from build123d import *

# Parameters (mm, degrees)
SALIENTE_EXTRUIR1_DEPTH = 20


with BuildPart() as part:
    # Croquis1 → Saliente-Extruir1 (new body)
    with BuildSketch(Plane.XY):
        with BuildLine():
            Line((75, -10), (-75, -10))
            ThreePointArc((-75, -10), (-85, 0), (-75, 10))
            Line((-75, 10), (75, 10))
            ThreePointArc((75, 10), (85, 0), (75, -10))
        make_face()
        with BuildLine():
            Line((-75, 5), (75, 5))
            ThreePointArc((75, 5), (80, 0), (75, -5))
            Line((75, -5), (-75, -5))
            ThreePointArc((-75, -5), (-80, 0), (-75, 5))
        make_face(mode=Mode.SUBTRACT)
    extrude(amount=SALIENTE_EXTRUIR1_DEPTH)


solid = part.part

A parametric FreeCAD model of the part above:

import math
import FreeCAD as App
import Part
import Sketcher
from FreeCAD import Vector
Q = App.Units.Quantity

doc = App.newDocument("Part")
body = doc.addObject("PartDesign::Body", "Body")

# Sketch on XY plane
sketch1 = doc.addObject("Sketcher::SketchObject", "Sketch")
body.addObject(sketch1)
sketch1.AttachmentSupport = (doc.XY_Plane, [""])
sketch1.MapMode = "FlatFace"
sketch1.addGeometry(Part.LineSegment(Vector(-75, -10, 0), Vector(75, -10, 0)), False)
sketch1.addGeometry(Part.ArcOfCircle(Part.Circle(Vector(75, 0, 0), Vector(0, 0, 1), 10), math.radians(-90), math.radians(90)), False)
sketch1.addGeometry(Part.LineSegment(Vector(75, 10, 0), Vector(-75, 10, 0)), False)
sketch1.addGeometry(Part.ArcOfCircle(Part.Circle(Vector(-75, 0, 0), Vector(0, 0, 1), 10), math.radians(90), math.radians(270)), False)
sketch1.addGeometry(Part.LineSegment(Vector(-75, 5, 0), Vector(75, 5, 0)), False)
sketch1.addGeometry(Part.ArcOfCircle(Part.Circle(Vector(75, 0, 0), Vector(0, 0, 1), 5), math.radians(-90), math.radians(90)), False)
sketch1.addGeometry(Part.LineSegment(Vector(75, -5, 0), Vector(-75, -5, 0)), False)
sketch1.addGeometry(Part.ArcOfCircle(Part.Circle(Vector(-75, 0, 0), Vector(0, 0, 1), 5), math.radians(90), math.radians(270)), False)
sketch1.addConstraint(Sketcher.Constraint("Tangent", 0, 2, 1, 1))
sketch1.addConstraint(Sketcher.Constraint("Tangent", 1, 2, 2, 1))
sketch1.addConstraint(Sketcher.Constraint("Tangent", 2, 2, 3, 1))
sketch1.addConstraint(Sketcher.Constraint("Tangent", 3, 2, 0, 1))
sketch1.addConstraint(Sketcher.Constraint("Tangent", 4, 2, 5, 2))
sketch1.addConstraint(Sketcher.Constraint("Tangent", 5, 1, 6, 1))
sketch1.addConstraint(Sketcher.Constraint("Tangent", 6, 2, 7, 2))
sketch1.addConstraint(Sketcher.Constraint("Tangent", 7, 1, 4, 1))
sketch1.addConstraint(Sketcher.Constraint("Horizontal", 0))
sketch1.addConstraint(Sketcher.Constraint("Horizontal", 2))
sketch1.addConstraint(Sketcher.Constraint("Horizontal", 4))
sketch1.addConstraint(Sketcher.Constraint("Horizontal", 6))
sketch1.addConstraint(Sketcher.Constraint("Coincident", 5, 3, 1, 3))
sketch1.addConstraint(Sketcher.Constraint("Symmetric", 1, 3, 3, 3, -1, 1))
sketch1.addConstraint(Sketcher.Constraint("Vertical", 7, 3, 2, 2))
sketch1.addConstraint(Sketcher.Constraint("Radius", 1, Q("10 mm")))
sketch1.addConstraint(Sketcher.Constraint("Radius", 5, Q("5 mm")))
sketch1.addConstraint(Sketcher.Constraint("DistanceX", 0, 1, 0, 2, Q("150 mm")))
pad1 = doc.addObject("PartDesign::Pad", "Pad")
body.addObject(pad1)
pad1.Profile = sketch1
pad1.Length = 20

doc.recompute()
